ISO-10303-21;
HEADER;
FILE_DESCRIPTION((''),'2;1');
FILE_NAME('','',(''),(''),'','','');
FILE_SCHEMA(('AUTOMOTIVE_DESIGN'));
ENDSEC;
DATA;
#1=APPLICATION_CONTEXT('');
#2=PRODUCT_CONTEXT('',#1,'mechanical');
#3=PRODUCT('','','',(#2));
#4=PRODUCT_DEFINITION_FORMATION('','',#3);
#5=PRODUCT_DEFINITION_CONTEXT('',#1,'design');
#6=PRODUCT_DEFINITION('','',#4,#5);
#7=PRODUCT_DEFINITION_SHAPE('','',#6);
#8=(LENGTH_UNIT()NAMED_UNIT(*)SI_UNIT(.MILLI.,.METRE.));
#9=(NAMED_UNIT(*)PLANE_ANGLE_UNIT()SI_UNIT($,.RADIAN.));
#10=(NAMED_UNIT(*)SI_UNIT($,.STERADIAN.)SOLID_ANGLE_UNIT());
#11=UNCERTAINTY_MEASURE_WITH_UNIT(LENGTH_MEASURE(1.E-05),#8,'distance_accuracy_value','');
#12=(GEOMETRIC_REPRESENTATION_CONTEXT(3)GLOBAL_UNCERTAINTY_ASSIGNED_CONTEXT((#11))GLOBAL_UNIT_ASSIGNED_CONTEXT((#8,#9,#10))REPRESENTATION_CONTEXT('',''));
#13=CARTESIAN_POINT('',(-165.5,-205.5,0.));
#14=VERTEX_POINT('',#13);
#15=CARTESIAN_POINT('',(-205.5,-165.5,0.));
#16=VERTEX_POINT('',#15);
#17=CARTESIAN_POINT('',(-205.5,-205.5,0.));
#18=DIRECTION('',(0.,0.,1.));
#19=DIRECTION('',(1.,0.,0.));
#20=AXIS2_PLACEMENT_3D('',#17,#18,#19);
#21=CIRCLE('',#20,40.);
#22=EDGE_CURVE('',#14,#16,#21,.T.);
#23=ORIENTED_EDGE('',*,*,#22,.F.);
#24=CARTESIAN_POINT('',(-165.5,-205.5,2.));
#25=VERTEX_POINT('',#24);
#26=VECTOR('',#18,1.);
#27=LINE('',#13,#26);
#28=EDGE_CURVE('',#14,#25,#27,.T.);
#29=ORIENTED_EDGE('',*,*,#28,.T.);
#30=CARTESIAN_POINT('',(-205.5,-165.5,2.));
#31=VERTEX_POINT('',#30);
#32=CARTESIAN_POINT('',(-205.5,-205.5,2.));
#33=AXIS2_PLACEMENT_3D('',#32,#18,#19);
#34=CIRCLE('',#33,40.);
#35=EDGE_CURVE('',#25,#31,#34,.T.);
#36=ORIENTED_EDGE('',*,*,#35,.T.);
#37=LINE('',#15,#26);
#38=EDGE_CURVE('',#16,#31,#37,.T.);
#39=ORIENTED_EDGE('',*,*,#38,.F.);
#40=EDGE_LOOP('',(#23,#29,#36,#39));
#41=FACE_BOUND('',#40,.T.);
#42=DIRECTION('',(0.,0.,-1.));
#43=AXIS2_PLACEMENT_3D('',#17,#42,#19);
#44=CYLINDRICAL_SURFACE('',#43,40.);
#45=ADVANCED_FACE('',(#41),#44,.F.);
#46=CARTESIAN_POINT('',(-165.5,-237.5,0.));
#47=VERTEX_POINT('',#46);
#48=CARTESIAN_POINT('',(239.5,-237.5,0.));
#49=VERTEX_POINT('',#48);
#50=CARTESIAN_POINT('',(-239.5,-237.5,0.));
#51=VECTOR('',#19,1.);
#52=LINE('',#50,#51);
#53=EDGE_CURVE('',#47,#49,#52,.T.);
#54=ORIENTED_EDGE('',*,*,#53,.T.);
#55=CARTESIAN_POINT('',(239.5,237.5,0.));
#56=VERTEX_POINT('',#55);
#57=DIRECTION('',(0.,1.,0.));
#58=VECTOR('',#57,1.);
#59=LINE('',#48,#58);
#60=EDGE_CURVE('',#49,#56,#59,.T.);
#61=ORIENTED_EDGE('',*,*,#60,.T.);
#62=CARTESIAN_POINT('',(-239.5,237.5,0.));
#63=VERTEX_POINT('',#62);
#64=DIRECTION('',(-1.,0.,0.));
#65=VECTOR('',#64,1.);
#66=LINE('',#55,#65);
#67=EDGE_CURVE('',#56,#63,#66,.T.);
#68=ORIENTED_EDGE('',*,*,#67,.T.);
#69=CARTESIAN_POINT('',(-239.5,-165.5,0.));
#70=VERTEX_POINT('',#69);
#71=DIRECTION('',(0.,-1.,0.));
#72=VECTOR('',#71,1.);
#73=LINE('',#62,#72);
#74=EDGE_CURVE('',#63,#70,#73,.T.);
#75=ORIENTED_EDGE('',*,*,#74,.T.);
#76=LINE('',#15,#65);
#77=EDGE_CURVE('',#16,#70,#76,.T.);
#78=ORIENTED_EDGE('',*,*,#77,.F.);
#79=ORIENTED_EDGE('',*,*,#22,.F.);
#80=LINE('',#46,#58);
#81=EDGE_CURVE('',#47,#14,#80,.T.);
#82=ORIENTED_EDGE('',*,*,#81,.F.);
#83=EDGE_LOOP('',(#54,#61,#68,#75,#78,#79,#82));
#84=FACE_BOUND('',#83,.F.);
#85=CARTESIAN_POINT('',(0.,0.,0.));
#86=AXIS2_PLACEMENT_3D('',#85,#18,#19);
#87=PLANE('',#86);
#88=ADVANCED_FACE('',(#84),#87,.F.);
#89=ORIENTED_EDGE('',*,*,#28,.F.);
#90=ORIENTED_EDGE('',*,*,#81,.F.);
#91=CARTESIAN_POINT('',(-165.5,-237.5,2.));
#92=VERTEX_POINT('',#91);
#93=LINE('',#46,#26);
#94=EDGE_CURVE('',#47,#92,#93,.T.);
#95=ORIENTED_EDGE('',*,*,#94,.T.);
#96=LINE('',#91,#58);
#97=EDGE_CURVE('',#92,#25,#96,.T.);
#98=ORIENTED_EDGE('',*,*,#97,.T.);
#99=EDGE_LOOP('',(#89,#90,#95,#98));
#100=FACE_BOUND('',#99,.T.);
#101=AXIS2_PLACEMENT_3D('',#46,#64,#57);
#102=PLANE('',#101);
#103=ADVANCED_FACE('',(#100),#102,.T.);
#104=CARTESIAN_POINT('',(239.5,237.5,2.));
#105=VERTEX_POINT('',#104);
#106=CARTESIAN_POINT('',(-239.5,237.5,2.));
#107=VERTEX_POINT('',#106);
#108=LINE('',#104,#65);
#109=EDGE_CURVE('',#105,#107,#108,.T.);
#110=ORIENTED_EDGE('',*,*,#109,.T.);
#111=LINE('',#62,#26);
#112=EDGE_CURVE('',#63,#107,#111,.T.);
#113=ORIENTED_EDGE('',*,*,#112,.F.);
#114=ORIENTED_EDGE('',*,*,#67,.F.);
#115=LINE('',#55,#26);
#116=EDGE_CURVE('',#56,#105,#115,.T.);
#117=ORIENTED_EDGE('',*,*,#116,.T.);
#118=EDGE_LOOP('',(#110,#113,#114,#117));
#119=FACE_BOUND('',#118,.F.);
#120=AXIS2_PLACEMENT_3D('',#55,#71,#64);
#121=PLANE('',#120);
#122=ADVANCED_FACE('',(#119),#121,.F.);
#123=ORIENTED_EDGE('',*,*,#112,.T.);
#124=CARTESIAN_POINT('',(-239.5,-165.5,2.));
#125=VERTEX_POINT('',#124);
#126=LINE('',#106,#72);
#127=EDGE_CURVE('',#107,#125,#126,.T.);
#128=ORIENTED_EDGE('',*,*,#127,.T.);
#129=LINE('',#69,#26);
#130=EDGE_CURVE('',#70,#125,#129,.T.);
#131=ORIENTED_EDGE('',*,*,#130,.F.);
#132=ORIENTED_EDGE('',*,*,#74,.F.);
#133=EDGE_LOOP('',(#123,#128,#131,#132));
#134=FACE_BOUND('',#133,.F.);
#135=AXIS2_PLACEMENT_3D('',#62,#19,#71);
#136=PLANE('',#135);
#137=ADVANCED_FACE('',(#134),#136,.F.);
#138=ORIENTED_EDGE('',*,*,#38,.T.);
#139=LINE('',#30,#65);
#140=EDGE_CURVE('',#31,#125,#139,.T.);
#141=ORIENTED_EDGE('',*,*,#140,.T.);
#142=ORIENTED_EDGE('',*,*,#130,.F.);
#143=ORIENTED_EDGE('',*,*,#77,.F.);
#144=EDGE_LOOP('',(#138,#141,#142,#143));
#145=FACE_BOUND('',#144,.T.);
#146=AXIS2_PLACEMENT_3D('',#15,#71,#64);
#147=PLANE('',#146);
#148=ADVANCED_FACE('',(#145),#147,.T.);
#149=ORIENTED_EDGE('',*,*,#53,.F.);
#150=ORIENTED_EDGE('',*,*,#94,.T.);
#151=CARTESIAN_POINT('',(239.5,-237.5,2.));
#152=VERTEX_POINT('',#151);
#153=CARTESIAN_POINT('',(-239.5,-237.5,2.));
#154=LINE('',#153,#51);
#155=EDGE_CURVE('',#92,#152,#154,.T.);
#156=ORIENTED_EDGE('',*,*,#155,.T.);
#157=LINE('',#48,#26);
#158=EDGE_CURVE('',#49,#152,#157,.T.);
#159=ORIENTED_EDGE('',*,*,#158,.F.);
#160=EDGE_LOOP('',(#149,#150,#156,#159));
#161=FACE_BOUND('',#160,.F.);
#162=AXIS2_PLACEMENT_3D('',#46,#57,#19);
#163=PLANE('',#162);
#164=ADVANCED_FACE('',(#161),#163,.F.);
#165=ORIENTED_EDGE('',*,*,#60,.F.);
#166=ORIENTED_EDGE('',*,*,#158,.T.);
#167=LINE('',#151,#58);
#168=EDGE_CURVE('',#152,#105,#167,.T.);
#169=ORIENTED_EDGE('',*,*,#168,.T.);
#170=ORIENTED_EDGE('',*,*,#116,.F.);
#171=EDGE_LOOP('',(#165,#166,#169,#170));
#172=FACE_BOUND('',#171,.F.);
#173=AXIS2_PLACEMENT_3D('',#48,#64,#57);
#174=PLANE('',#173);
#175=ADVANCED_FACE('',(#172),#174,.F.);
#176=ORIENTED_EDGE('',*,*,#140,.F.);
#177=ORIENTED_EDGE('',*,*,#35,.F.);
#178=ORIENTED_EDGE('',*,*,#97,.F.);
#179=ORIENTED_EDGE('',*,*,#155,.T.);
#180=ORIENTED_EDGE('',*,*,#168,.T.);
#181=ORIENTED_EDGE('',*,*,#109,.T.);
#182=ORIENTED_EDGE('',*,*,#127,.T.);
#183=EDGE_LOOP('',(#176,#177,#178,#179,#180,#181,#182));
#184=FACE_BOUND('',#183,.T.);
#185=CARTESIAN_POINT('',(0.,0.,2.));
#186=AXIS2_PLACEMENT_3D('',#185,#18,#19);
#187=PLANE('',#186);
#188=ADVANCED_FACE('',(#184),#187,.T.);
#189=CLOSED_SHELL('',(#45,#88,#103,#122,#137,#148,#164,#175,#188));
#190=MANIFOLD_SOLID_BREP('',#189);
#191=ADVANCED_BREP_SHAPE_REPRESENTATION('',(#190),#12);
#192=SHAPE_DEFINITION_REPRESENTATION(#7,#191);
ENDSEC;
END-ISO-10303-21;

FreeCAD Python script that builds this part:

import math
import FreeCAD as App
import Part
import Sketcher
Q = App.Units.Quantity

doc = App.newDocument("Part")
body = doc.addObject("PartDesign::Body", "Body")

# Sketch on XY plane
sketch1 = body.newObject("Sketcher::SketchObject", "Sketch")
sketch1.AttachmentSupport = (doc.getObject("XY_Plane"), [""])
sketch1.MapMode = "FlatFace"
sketch1.addGeometry([
    Part.LineSegment(App.Vector(-166, -206, 0), App.Vector(-166, -238, 0)),  # 0
    Part.LineSegment(App.Vector(-166, -238, 0), App.Vector(240, -238, 0)),  # 1
    Part.LineSegment(App.Vector(240, -238, 0), App.Vector(240, 238, 0)),  # 2
    Part.LineSegment(App.Vector(240, 238, 0), App.Vector(-240, 238, 0)),  # 3
    Part.LineSegment(App.Vector(-240, 238, 0), App.Vector(-240, -166, 0)),  # 4
    Part.LineSegment(App.Vector(-240, -166, 0), App.Vector(-206, -166, 0)),  # 5
    Part.ArcOfCircle(Part.Circle(App.Vector(-206, -206, 0), App.Vector(0, 0, 1), 40), math.radians(0), math.radians(90)),  # 6
], False)
sketch1.addConstraint([
    Sketcher.Constraint("Coincident", 0, 2, 1, 1),
    Sketcher.Constraint("Coincident", 1, 2, 2, 1),
    Sketcher.Constraint("Coincident", 2, 2, 3, 1),
    Sketcher.Constraint("Coincident", 3, 2, 4, 1),
    Sketcher.Constraint("Coincident", 4, 2, 5, 1),
    Sketcher.Constraint("Tangent", 5, 2, 6, 2),
    Sketcher.Constraint("Tangent", 6, 1, 0, 1),
    Sketcher.Constraint("Vertical", 0),
    Sketcher.Constraint("Horizontal", 1),
    Sketcher.Constraint("Vertical", 2),
    Sketcher.Constraint("Horizontal", 3),
    Sketcher.Constraint("Vertical", 4),
    Sketcher.Constraint("Horizontal", 5),
    Sketcher.Constraint("Symmetric", 1, 2, 3, 2, -1, 1),
    Sketcher.Constraint("Radius", 6, Q("40 mm")),
    Sketcher.Constraint("DistanceX", 3, 2, 3, 1, Q("479 mm")),
    Sketcher.Constraint("DistanceY", 2, 1, 2, 2, Q("475 mm")),
    Sketcher.Constraint("DistanceX", 3, 2, 0, 2, Q("74 mm")),
    Sketcher.Constraint("DistanceY", 0, 2, 4, 2, Q("72 mm")),
])
pad1 = body.newObject("PartDesign::Pad", "Pad")
pad1.Profile = sketch1
pad1.Length = 2

doc.recompute()
